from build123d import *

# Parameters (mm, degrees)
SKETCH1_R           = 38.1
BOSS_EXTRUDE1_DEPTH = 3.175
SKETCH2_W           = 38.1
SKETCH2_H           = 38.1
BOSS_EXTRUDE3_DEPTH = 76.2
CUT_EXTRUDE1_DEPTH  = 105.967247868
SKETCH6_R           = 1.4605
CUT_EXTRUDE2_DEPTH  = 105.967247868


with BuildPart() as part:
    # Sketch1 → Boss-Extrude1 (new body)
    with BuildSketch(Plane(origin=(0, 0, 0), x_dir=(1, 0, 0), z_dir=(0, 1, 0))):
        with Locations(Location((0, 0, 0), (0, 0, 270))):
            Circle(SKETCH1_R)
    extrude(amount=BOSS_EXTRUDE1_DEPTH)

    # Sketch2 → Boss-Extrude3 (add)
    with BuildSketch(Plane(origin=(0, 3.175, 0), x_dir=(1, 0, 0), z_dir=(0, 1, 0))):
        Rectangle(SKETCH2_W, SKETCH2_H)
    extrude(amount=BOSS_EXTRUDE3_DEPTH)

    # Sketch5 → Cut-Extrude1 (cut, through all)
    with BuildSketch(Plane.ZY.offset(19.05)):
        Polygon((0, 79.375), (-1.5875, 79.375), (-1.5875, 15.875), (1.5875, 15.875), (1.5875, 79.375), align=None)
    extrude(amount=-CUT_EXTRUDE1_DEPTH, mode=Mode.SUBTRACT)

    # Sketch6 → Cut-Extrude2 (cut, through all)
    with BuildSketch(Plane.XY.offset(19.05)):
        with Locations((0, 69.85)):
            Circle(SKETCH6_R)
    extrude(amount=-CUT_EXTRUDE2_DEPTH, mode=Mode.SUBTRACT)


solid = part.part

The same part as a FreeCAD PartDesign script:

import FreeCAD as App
import Part
import Sketcher
Q = App.Units.Quantity

doc = App.newDocument("Part")
params = doc.addObject("Spreadsheet::Sheet", "Params")
for row, (alias, value) in enumerate([
    ("sketch1_diameter", "3 in"),
    ("pad1_length", "0.125 in"),
    ("sketch2_width", "1.5 in"),
    ("pad2_length", "3 in"),
    ("sketch3_width", "2.5 in"),
    ("sketch3_height", "0.125 in"),
    ("sketch4_diameter", "0.115 in"),
], start=1):
    params.set(f"A{row}", alias)
    params.set(f"B{row}", "=" + value)
    params.setAlias(f"B{row}", alias)

body = doc.addObject("PartDesign::Body", "Body")

# Sketch on XZ plane
sketch1 = doc.addObject("Sketcher::SketchObject", "Sketch")
body.addObject(sketch1)
sketch1.AttachmentSupport = (doc.XZ_Plane, [""])
sketch1.MapMode = "FlatFace"
sketch1.addGeometry(Part.Circle(App.Vector(0, 0, 0), App.Vector(0, 0, 1), 38), False)
sketch1.addConstraint([
    Sketcher.Constraint("Coincident", 0, 3, -1, 1),
    Sketcher.Constraint("Diameter", 0, Q("3 in")),
])
sketch1.setExpression("Constraints[1]", "Params.sketch1_diameter")
pad1 = doc.addObject("PartDesign::Pad", "Pad")
body.addObject(pad1)
pad1.Profile = sketch1
pad1.setExpression("Length", "Params.pad1_length")
pad1.Reversed = True

# Sketch on XZ plane
sketch2 = doc.addObject("Sketcher::SketchObject", "Sketch001")
body.addObject(sketch2)
sketch2.AttachmentSupport = (doc.XZ_Plane, [""])
sketch2.MapMode = "FlatFace"
sketch2.AttachmentOffset = App.Placement(App.Vector(0, 0, -0.125 * 25.4), App.Rotation())
sketch2.addGeometry([
    Part.LineSegment(App.Vector(-19, -19, 0), App.Vector(-19, 19, 0)),
    Part.LineSegment(App.Vector(-19, 19, 0), App.Vector(19, 19, 0)),
    Part.LineSegment(App.Vector(19, 19, 0), App.Vector(19, -19, 0)),
    Part.LineSegment(App.Vector(19, -19, 0), App.Vector(-19, -19, 0)),
], False)
sketch2.addConstraint([
    Sketcher.Constraint("Coincident", 0, 2, 1, 1),
    Sketcher.Constraint("Coincident", 1, 2, 2, 1),
    Sketcher.Constraint("Coincident", 2, 2, 3, 1),
    Sketcher.Constraint("Coincident", 3, 2, 0, 1),
    Sketcher.Constraint("Vertical", 0),
    Sketcher.Constraint("Horizontal", 1),
    Sketcher.Constraint("Vertical", 2),
    Sketcher.Constraint("Horizontal", 3),
    Sketcher.Constraint("Symmetric", 0, 2, 2, 2, -1, 1),
    Sketcher.Constraint("Equal", 3, 0),
    Sketcher.Constraint("DistanceX", 1, 1, 1, 2, Q("1.5 in")),
])
sketch2.setExpression("Constraints[10]", "Params.sketch2_width")
pad2 = doc.addObject("PartDesign::Pad", "Pad001")
body.addObject(pad2)
pad2.Profile = sketch2
pad2.setExpression("Length", "Params.pad2_length")
pad2.Reversed = True

# Sketch on YZ plane
sketch3 = doc.addObject("Sketcher::SketchObject", "Sketch002")
body.addObject(sketch3)
sketch3.AttachmentSupport = (doc.YZ_Plane, [""])
sketch3.MapMode = "FlatFace"
sketch3.AttachmentOffset = App.Placement(App.Vector(0, 0, -0.75 * 25.4), App.Rotation())
sketch3.addGeometry([
    Part.LineSegment(App.Vector(79.4, -1.6, 0), App.Vector(15.9, -1.6, 0)),
    Part.LineSegment(App.Vector(15.9, -1.6, 0), App.Vector(15.9, 1.6, 0)),
    Part.LineSegment(App.Vector(15.9, 1.6, 0), App.Vector(79.4, 1.6, 0)),
    Part.LineSegment(App.Vector(79.4, 1.6, 0), App.Vector(79.4, -1.6, 0)),
], False)
sketch3.addConstraint([
    Sketcher.Constraint("Coincident", 0, 2, 1, 1),
    Sketcher.Constraint("Coincident", 1, 2, 2, 1),
    Sketcher.Constraint("Coincident", 2, 2, 3, 1),
    Sketcher.Constraint("Coincident", 3, 2, 0, 1),
    Sketcher.Constraint("Horizontal", 0),
    Sketcher.Constraint("Vertical", 1),
    Sketcher.Constraint("Horizontal", 2),
    Sketcher.Constraint("Vertical", 3),
    Sketcher.Constraint("DistanceX", 0, 2, 0, 1, Q("2.5 in")),
    Sketcher.Constraint("DistanceY", 1, 1, 1, 2, Q("0.125 in")),
    Sketcher.Constraint("DistanceX", -1, 1, 0, 2, Q("0.625 in")),
    Sketcher.Constraint("DistanceY", 0, 2, -1, 1, Q("0.0625 in")),
])
sketch3.setExpression("Constraints[8]", "Params.sketch3_width")
sketch3.setExpression("Constraints[9]", "Params.sketch3_height")
pocket1 = doc.addObject("PartDesign::Pocket", "Pocket")
body.addObject(pocket1)
pocket1.Profile = sketch3
pocket1.Type = "ThroughAll"
pocket1.Reversed = True

# Sketch on XY plane
sketch4 = doc.addObject("Sketcher::SketchObject", "Sketch003")
body.addObject(sketch4)
sketch4.AttachmentSupport = (doc.XY_Plane, [""])
sketch4.MapMode = "FlatFace"
sketch4.AttachmentOffset = App.Placement(App.Vector(0, 0, 0.75 * 25.4), App.Rotation())
sketch4.addGeometry(Part.Circle(App.Vector(0, 69.8, 0), App.Vector(0, 0, 1), 1.5), False)
sketch4.addConstraint([
    Sketcher.Constraint("PointOnObject", 0, 3, -2),
    Sketcher.Constraint("Diameter", 0, Q("0.115 in")),
    Sketcher.Constraint("DistanceY", -1, 1, 0, 3, Q("2.75 in")),
])
sketch4.setExpression("Constraints[1]", "Params.sketch4_diameter")
pocket2 = doc.addObject("PartDesign::Pocket", "Pocket001")
body.addObject(pocket2)
pocket2.Profile = sketch4
pocket2.Type = "ThroughAll"

doc.recompute()
